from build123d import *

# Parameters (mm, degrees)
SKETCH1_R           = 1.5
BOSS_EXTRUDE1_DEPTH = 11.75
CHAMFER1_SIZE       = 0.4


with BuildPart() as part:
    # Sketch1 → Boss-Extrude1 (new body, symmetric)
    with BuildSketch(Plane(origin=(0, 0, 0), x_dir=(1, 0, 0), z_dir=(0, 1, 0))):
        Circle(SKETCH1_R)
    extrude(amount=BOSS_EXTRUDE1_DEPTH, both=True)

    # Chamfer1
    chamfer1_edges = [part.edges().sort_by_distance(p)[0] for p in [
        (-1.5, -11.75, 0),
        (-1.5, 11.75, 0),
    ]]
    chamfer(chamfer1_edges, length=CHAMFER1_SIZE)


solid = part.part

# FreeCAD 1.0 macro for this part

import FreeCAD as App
import Part
import Sketcher

V = App.Vector


def edges_at(feature, points):
    """Names of the edges that pass closest to the given points."""
    edges = feature.Shape.Edges
    near = lambda p: min(range(len(edges)), key=lambda i: edges[i].distToShape(Part.Vertex(*p))[0])
    return sorted({f"Edge{near(p) + 1}" for p in points})

doc = App.newDocument("Part")
body = doc.addObject("PartDesign::Body", "Body")

# Sketch on XZ plane
sketch1 = doc.addObject("Sketcher::SketchObject", "Sketch")
body.addObject(sketch1)
sketch1.AttachmentSupport = (doc.XZ_Plane, [""])
sketch1.MapMode = "FlatFace"
sketch1.addGeometry(Part.Circle(V(0, 0, 0), V(0, 0, 1), 1.5), False)
sketch1.addConstraint([
    Sketcher.Constraint("Coincident", 0, 3, -1, 1),
    Sketcher.Constraint("Diameter", 0, 3.0),
])
pad1 = doc.addObject("PartDesign::Pad", "Pad")
body.addObject(pad1)
pad1.Profile = sketch1
pad1.Length = 23.5
pad1.Midplane = True
doc.recompute()

chamfer = doc.addObject("PartDesign::Chamfer", "Chamfer")
body.addObject(chamfer)
chamfer.Base = (pad1, edges_at(pad1, [(-1.5, -11.75, 0), (-1.5, 11.75, 0)]))
chamfer.Size = 0.4

doc.recompute()
